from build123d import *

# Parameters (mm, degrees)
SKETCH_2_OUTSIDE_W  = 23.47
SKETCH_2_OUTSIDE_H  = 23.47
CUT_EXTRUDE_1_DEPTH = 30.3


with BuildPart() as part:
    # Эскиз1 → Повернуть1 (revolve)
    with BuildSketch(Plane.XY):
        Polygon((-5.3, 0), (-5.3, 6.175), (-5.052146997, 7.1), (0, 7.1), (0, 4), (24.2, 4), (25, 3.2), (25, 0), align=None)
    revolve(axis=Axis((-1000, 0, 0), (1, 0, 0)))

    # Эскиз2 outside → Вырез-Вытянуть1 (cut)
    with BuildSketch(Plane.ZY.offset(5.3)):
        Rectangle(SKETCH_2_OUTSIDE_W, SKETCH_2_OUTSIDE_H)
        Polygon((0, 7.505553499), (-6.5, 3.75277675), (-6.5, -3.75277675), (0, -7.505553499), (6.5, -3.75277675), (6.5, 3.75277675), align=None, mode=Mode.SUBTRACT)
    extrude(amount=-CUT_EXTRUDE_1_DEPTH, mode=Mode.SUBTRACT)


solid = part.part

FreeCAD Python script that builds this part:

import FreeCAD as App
import Part
import Sketcher
from FreeCAD import Vector
Q = App.Units.Quantity


def add_polygon(sketch, points):
    """Adds a closed chain of lines whose ends are joined by coincident constraints."""
    first, n = sketch.GeometryCount, len(points)
    for a, b in zip(points, points[1:] + points[:1]):
        sketch.addGeometry(Part.LineSegment(App.Vector(*a, 0), App.Vector(*b, 0)), False)
    for i in range(n):
        sketch.addConstraint(Sketcher.Constraint("Coincident", first + i, 2, first + (i + 1) % n, 1))

doc = App.newDocument("Part")
params = doc.addObject("Spreadsheet::Sheet", "Params")
for row, (alias, value) in enumerate([
    ("sketch1_width", "30.3 mm"),
    ("sketch1_width2", "24.2 mm"),
    ("sketch1_height", "3.2 mm"),
    ("sketch1_height2", "3.1 mm"),
    ("revolution_angle", "360 deg"),
    ("sketch2_width", "23.47 mm"),
    ("pocket1_length", "30.3 mm"),
], start=1):
    params.set(f"A{row}", alias)
    params.set(f"B{row}", "=" + value)
    params.setAlias(f"B{row}", alias)

body = doc.addObject("PartDesign::Body", "Body")

sketch1 = body.newObject("Sketcher::SketchObject", "Sketch")
sketch1.AttachmentSupport = (doc.getObject("XY_Plane"), [""])
sketch1.MapMode = "FlatFace"
add_polygon(sketch1, [(-5.3, 6.175), (-5.3, 0), (25, 0), (25, 3.2), (24.2, 4), (0, 4), (0, 7.1), (-5.052147, 7.1)])
sketch1.addConstraint([
    Sketcher.Constraint("Vertical", 0),
    Sketcher.Constraint("Horizontal", 1),
    Sketcher.Constraint("Vertical", 2),
    Sketcher.Constraint("Horizontal", 4),
    Sketcher.Constraint("Vertical", 5),
    Sketcher.Constraint("Horizontal", 6),
    Sketcher.Constraint("PointOnObject", 0, 2, -1),
    Sketcher.Constraint("PointOnObject", 4, 2, -2),
    Sketcher.Constraint("Angle", 3, Q("135 deg")),
    Sketcher.Constraint("Angle", 7, Q("-105 deg")),
    Sketcher.Constraint("DistanceX", 1, 1, 1, 2, 30.3),
    Sketcher.Constraint("DistanceX", 4, 2, 4, 1, 24.2),
    Sketcher.Constraint("DistanceY", 2, 1, 2, 2, 3.2),
    Sketcher.Constraint("DistanceY", 5, 1, 5, 2, 3.1),
    Sketcher.Constraint("DistanceX", -1, 1, 1, 2, 25.0),
    Sketcher.Constraint("DistanceY", 0, 2, 0, 1, 6.175),
])
sketch1.setExpression("Constraints[18]", "Params.sketch1_width")
sketch1.setExpression("Constraints[19]", "Params.sketch1_width2")
sketch1.setExpression("Constraints[20]", "Params.sketch1_height")
sketch1.setExpression("Constraints[21]", "Params.sketch1_height2")
revolution = body.newObject("PartDesign::Revolution", "Revolution")
revolution.Profile = sketch1
revolution.ReferenceAxis = (sketch1, ["H_Axis"])
revolution.setExpression("Angle", "Params.revolution_angle")

sketch2 = body.newObject("Sketcher::SketchObject", "Sketch001")
sketch2.AttachmentSupport = (doc.getObject("YZ_Plane"), [""])
sketch2.MapMode = "FlatFace"
sketch2.AttachmentOffset = App.Placement(Vector(0, 0, -5.3), App.Rotation())
add_polygon(sketch2, [(11.735, -11.735), (-11.735, -11.735), (-11.735, 11.735), (11.735, 11.735)])
add_polygon(sketch2, [(3.752777, -6.5), (7.505553, 0), (3.752777, 6.5), (-3.752777, 6.5), (-7.505553, 0), (-3.752777, -6.5)])
sketch2.addConstraint([
    Sketcher.Constraint("Horizontal", 0),
    Sketcher.Constraint("Vertical", 1),
    Sketcher.Constraint("Horizontal", 2),
    Sketcher.Constraint("Vertical", 3),
    Sketcher.Constraint("Horizontal", 6),
    Sketcher.Constraint("Horizontal", 9),
    Sketcher.Constraint("Symmetric", 0, 2, 2, 2, -1, 1),
    Sketcher.Constraint("Symmetric", 4, 2, 7, 2, -1, 1),
    Sketcher.Constraint("Symmetric", 5, 2, 8, 2, -1, 1),
    Sketcher.Constraint("PointOnObject", 4, 2, -1),
    Sketcher.Constraint("Parallel", 4, 7),
    Sketcher.Constraint("Vertical", 6, 2, 8, 2),
    Sketcher.Constraint("Equal", 2, 1),
    Sketcher.Constraint("Angle", 4, Q("60 deg")),
    Sketcher.Constraint("DistanceY", 8, 2, 6, 2, 13.0),
    Sketcher.Constraint("DistanceX", 0, 2, 0, 1, 23.47),
    Sketcher.Constraint("DistanceX", 6, 2, 6, 1, 7.505554),
])
sketch2.setExpression("Constraints[25]", "Params.sketch2_width")
pocket1 = body.newObject("PartDesign::Pocket", "Pocket")
pocket1.Profile = sketch2
pocket1.setExpression("Length", "Params.pocket1_length")
pocket1.Reversed = True

doc.recompute()
